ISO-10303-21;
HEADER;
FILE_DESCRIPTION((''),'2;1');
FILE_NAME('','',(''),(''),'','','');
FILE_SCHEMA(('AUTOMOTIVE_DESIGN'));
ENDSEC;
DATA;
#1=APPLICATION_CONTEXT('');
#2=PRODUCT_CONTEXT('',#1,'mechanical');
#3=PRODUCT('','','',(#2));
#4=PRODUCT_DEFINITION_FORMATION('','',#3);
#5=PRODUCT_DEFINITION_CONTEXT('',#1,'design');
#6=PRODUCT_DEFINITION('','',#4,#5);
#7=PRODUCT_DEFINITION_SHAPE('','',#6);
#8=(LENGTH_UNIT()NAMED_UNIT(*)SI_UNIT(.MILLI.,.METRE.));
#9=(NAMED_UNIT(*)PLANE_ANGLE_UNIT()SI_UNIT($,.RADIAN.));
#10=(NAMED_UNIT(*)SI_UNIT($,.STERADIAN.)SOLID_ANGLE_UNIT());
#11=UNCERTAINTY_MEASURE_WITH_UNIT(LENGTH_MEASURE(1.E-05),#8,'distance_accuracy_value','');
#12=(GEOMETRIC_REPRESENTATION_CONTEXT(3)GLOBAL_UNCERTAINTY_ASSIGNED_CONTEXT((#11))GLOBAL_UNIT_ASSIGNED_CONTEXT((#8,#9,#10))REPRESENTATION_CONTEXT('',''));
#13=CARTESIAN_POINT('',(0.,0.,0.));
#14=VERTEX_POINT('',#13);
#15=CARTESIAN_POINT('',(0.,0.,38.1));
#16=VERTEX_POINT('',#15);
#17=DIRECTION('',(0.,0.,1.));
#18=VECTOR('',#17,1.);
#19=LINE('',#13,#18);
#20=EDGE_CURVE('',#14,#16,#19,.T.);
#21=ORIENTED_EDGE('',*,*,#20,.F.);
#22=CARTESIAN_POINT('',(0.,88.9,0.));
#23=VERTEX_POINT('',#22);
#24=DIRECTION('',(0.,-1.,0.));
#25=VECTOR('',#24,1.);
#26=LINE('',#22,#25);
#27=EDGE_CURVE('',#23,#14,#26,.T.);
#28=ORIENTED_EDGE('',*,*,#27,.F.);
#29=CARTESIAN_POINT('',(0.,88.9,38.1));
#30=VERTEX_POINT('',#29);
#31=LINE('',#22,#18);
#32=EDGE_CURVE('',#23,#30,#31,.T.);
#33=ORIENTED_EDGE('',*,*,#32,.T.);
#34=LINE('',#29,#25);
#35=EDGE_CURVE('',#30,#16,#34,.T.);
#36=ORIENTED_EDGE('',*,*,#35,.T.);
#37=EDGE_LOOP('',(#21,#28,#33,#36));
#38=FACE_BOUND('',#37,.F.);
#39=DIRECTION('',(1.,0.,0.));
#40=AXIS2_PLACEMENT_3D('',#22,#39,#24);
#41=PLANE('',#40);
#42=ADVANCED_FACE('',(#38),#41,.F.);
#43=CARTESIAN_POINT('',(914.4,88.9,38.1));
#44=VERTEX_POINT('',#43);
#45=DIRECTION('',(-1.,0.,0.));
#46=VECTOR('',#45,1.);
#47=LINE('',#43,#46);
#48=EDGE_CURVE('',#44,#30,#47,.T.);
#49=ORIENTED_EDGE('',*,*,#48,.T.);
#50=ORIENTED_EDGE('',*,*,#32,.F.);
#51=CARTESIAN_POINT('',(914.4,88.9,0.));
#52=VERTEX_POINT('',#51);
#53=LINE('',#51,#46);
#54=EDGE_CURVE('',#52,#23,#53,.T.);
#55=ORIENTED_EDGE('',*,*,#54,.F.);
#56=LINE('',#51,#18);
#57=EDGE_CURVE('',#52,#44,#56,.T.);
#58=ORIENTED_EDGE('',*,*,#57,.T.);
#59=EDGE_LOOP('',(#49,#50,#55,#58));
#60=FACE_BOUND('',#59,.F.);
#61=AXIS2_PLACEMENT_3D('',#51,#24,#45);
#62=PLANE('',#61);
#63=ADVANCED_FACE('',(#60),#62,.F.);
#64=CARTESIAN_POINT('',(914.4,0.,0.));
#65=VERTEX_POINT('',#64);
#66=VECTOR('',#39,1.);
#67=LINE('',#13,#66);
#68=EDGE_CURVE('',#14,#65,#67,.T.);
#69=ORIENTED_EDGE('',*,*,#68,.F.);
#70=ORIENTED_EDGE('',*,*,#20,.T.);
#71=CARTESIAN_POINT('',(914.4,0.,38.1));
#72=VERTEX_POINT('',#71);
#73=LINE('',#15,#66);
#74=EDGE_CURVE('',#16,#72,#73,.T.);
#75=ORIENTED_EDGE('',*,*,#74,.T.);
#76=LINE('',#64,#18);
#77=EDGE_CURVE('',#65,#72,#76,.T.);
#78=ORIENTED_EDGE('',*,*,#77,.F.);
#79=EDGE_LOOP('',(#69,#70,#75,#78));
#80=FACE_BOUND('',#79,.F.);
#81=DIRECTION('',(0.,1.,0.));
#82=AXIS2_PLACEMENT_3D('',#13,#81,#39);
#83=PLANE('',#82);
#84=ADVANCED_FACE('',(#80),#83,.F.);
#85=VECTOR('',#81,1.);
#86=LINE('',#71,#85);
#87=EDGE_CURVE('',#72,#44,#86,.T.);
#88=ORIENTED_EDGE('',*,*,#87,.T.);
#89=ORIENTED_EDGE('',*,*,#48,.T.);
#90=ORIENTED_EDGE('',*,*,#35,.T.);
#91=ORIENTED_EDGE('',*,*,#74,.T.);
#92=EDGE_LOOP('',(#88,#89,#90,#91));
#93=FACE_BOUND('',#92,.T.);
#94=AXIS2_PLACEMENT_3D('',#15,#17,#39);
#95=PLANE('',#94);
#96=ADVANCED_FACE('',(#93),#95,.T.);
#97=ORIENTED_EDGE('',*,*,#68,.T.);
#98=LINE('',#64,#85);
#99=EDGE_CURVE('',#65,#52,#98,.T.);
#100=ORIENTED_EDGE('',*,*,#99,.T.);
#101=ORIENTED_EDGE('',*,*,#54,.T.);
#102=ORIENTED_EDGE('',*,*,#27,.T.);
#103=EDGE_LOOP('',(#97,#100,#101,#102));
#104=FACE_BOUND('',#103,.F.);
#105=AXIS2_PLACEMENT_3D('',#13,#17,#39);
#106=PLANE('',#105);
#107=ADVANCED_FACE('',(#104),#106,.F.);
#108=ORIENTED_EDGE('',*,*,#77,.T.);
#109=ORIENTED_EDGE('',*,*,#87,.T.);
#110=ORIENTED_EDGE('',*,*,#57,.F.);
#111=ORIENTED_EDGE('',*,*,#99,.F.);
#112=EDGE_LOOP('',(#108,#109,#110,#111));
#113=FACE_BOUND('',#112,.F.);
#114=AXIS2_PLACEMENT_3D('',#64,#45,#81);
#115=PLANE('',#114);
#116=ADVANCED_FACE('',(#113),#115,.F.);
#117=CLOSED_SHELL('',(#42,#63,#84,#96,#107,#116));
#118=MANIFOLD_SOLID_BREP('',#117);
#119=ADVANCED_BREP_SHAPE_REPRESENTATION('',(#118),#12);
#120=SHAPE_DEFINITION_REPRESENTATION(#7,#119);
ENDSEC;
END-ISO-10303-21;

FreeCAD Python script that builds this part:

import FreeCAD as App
import Part
import Sketcher
from FreeCAD import Vector
Q = App.Units.Quantity

doc = App.newDocument("Part")
body = doc.addObject("PartDesign::Body", "Body")

sketch1 = body.newObject("Sketcher::SketchObject", "Sketch")
sketch1.AttachmentSupport = (doc.getObject("XY_Plane"), [""])
sketch1.MapMode = "FlatFace"
sketch1.addGeometry([
    Part.LineSegment(Vector(0, 89, 0), Vector(0, 0, 0)),
    Part.LineSegment(Vector(0, 0, 0), Vector(914, 0, 0)),
    Part.LineSegment(Vector(914, 0, 0), Vector(914, 89, 0)),
    Part.LineSegment(Vector(914, 89, 0), Vector(0, 89, 0)),
], False)
sketch1.addConstraint([
    Sketcher.Constraint("Coincident", 0, 2, 1, 1),
    Sketcher.Constraint("Coincident", 1, 2, 2, 1),
    Sketcher.Constraint("Coincident", 2, 2, 3, 1),
    Sketcher.Constraint("Coincident", 3, 2, 0, 1),
    Sketcher.Constraint("Vertical", 0),
    Sketcher.Constraint("Horizontal", 1),
    Sketcher.Constraint("Vertical", 2),
    Sketcher.Constraint("Horizontal", 3),
    Sketcher.Constraint("Coincident", 0, 2, -1, 1),
    Sketcher.Constraint("DistanceX", 1, 1, 1, 2, Q("36 in")),
    Sketcher.Constraint("DistanceY", 0, 2, 0, 1, Q("3.5 in")),
])
pad1 = body.newObject("PartDesign::Pad", "Pad")
pad1.Profile = sketch1
pad1.Length = Q("1.5 in")

doc.recompute()
